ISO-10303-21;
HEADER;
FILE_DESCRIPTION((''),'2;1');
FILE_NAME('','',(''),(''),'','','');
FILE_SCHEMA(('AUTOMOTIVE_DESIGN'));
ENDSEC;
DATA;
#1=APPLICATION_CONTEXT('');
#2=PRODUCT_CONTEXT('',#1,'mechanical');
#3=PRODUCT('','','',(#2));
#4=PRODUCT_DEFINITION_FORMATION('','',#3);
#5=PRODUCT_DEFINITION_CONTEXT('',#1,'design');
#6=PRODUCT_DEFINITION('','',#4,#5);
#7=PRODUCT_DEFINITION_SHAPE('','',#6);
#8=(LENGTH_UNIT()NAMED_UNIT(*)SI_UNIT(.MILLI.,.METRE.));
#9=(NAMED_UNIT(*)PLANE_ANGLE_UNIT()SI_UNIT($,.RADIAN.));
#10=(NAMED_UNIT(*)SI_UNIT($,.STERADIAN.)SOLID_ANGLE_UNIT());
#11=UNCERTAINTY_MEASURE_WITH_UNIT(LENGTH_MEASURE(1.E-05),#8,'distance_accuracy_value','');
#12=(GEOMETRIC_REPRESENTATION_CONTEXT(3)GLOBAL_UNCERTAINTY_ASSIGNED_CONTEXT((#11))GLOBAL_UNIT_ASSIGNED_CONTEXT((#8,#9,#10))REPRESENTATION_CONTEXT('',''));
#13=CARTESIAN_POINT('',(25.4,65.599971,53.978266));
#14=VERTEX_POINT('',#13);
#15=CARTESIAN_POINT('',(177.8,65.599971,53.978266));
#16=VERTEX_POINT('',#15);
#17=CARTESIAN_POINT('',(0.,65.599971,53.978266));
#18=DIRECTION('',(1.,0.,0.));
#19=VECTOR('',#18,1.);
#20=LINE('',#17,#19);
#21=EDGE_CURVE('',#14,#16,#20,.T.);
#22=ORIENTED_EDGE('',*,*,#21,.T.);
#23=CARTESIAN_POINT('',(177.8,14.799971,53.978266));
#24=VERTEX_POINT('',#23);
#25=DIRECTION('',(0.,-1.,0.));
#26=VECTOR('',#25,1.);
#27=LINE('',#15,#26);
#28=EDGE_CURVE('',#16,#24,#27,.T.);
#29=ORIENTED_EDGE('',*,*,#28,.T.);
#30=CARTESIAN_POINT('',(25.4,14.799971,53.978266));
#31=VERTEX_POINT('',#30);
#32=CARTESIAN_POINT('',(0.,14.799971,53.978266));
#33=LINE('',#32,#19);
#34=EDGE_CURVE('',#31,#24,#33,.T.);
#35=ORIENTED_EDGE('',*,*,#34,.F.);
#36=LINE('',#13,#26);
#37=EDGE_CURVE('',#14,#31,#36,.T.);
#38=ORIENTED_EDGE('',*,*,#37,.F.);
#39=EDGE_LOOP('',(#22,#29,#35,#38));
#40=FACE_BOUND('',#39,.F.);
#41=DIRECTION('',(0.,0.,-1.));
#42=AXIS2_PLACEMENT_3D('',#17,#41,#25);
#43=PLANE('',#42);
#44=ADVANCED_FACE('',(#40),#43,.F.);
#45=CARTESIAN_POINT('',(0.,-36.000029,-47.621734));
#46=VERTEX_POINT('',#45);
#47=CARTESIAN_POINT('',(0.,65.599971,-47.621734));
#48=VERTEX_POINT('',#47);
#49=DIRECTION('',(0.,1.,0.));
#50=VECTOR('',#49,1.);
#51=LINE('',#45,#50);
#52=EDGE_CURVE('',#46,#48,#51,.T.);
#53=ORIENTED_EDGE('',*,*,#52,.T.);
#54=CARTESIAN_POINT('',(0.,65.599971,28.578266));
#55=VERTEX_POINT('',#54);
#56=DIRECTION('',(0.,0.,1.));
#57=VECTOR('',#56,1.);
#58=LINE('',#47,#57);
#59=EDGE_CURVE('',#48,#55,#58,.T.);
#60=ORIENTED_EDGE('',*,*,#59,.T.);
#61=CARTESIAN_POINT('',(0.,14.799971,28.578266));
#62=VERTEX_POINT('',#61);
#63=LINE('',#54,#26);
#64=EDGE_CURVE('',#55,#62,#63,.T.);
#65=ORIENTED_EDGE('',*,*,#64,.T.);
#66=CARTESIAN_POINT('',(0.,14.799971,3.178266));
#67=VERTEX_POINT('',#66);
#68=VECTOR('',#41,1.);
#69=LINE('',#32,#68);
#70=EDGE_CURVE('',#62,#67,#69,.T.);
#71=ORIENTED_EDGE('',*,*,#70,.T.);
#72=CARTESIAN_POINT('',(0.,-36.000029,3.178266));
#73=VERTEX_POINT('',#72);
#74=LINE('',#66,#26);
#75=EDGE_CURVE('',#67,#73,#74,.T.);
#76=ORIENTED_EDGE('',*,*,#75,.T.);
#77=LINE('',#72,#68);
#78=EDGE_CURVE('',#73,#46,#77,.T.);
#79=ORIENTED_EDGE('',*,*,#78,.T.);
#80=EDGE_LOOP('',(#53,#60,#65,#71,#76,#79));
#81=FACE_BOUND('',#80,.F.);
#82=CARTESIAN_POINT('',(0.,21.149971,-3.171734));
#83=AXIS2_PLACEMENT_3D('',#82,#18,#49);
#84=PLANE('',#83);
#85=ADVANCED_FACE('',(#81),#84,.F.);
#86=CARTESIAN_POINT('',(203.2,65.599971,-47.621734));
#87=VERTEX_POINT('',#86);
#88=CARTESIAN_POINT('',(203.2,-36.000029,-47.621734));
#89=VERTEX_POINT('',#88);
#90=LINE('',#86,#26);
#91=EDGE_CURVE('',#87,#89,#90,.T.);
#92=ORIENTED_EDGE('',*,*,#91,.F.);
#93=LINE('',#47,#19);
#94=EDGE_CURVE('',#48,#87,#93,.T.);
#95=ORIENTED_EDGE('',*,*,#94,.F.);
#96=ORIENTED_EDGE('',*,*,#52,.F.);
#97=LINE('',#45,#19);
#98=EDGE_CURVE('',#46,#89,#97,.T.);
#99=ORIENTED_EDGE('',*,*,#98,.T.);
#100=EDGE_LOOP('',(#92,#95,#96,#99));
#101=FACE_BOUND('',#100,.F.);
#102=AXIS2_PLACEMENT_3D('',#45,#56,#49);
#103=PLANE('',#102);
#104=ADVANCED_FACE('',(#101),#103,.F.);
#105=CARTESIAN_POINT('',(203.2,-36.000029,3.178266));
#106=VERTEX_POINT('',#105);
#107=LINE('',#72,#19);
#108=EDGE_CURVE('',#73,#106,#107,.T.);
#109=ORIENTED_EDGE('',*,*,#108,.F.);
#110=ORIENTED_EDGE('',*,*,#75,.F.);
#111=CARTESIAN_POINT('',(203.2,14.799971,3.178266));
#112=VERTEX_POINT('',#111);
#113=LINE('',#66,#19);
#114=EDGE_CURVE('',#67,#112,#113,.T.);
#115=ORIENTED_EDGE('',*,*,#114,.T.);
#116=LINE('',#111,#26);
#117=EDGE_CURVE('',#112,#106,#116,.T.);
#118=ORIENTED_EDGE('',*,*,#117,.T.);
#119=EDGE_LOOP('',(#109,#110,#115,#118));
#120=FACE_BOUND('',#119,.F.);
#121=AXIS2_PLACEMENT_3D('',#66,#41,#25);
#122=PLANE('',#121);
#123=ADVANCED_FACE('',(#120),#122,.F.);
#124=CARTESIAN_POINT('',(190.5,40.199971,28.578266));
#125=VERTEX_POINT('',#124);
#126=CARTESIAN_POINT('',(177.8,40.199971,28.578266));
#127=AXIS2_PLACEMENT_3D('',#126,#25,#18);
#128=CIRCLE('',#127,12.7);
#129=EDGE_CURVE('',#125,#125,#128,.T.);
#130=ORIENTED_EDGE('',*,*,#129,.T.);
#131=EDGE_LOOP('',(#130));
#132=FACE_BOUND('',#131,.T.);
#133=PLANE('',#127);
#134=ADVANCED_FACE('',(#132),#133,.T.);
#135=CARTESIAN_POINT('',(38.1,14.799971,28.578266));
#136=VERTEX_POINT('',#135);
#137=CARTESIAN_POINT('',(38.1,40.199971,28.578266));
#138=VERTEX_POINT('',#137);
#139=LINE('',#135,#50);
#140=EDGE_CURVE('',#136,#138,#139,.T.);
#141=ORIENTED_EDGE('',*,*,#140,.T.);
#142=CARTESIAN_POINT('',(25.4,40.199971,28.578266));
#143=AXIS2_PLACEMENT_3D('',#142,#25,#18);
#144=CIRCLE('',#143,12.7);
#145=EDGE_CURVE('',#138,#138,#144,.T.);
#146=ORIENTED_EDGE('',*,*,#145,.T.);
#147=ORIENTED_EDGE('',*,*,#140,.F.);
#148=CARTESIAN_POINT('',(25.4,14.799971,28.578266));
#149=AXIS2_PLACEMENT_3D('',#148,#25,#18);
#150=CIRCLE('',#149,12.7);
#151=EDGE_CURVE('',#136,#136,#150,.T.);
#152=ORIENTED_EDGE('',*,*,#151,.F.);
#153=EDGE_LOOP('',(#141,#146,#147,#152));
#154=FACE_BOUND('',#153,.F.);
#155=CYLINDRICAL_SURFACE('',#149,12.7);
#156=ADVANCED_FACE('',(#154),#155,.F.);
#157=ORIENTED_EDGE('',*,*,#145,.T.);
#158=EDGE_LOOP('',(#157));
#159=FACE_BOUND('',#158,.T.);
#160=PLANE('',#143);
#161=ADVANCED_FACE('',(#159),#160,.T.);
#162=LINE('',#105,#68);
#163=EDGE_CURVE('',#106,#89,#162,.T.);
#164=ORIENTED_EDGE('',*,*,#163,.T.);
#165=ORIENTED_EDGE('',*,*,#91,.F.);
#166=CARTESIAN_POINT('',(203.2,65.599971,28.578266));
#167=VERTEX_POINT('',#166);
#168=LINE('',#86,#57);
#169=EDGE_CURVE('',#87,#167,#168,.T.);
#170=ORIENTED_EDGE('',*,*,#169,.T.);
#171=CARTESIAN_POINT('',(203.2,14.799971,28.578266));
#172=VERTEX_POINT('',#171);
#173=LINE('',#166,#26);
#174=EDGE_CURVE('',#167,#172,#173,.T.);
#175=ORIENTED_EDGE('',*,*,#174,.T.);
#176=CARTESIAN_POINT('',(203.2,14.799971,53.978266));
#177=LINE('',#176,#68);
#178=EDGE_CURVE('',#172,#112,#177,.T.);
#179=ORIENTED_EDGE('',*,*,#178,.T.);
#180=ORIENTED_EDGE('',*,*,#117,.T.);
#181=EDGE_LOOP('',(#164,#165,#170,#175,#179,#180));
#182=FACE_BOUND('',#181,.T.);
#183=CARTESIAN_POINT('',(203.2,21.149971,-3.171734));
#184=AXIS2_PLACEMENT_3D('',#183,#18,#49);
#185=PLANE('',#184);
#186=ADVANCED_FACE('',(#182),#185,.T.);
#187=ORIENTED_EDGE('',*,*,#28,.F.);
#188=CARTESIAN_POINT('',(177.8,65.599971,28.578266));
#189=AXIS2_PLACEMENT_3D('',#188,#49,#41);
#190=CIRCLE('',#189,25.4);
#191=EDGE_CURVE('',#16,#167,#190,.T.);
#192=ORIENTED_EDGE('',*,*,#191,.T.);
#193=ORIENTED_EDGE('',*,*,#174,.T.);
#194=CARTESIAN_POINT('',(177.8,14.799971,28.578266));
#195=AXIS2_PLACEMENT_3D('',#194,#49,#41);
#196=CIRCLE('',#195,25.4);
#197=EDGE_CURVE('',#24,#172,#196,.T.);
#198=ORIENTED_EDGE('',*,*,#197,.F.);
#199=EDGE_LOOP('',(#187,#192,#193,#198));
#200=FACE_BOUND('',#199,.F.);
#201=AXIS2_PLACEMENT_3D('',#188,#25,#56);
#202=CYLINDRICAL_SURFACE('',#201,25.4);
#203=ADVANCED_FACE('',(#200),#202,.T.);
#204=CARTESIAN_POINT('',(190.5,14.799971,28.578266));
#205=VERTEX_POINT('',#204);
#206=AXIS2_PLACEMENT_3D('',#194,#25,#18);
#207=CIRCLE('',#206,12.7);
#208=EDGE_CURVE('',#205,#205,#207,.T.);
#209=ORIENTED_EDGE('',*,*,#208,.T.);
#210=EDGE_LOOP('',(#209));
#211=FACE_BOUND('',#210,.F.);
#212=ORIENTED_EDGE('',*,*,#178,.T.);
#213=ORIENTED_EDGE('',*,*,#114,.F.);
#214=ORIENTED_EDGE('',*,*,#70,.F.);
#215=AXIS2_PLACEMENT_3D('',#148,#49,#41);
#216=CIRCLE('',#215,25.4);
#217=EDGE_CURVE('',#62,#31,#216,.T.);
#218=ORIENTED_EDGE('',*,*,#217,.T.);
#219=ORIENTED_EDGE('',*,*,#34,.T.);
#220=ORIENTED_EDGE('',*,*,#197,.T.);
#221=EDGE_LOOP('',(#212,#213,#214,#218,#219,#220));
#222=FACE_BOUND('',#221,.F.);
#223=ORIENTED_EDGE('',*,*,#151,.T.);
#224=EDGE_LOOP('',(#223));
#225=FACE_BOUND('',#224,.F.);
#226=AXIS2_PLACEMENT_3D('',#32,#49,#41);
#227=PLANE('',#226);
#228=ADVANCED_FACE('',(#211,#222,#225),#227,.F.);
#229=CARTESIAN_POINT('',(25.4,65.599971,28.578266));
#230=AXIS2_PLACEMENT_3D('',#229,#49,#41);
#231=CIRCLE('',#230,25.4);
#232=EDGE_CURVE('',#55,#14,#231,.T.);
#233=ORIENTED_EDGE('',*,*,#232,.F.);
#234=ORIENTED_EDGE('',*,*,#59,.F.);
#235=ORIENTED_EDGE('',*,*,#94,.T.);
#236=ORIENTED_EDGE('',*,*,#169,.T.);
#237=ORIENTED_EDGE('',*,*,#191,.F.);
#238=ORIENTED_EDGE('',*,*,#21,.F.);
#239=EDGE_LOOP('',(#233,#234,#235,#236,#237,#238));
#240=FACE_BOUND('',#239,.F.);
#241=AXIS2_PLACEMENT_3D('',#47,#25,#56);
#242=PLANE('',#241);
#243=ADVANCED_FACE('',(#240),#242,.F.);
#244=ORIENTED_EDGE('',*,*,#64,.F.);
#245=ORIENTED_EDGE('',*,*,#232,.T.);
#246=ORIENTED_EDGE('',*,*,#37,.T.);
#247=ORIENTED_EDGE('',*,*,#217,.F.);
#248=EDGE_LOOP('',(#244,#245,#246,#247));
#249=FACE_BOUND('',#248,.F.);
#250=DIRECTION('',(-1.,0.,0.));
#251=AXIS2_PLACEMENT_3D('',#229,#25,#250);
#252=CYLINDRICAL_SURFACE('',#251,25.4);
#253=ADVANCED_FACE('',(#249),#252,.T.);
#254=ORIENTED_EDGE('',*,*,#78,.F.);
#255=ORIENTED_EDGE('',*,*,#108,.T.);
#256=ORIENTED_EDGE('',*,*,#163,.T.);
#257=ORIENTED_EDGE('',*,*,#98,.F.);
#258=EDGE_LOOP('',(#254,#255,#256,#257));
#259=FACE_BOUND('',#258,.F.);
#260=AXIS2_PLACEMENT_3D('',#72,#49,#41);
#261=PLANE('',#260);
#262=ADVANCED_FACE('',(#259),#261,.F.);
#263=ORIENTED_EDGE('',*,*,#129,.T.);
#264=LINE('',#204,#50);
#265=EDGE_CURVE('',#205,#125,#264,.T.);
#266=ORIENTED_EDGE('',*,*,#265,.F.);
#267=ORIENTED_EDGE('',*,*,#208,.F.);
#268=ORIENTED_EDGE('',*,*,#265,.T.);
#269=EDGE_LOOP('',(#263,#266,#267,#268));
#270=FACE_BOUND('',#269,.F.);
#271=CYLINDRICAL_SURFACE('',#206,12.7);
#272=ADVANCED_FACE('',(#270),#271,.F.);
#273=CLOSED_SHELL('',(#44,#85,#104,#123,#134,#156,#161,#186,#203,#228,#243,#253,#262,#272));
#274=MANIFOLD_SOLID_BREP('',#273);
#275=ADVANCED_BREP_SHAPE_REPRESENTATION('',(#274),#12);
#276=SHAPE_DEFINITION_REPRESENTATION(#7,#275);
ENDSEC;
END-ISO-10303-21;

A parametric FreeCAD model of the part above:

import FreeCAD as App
import Part
import Sketcher

V = App.Vector
Q = App.Units.Quantity


def edges_at(feature, points):
    """Names of the edges that pass closest to the given points."""
    edges = feature.Shape.Edges
    near = lambda p: min(range(len(edges)), key=lambda i: edges[i].distToShape(Part.Vertex(*p))[0])
    return sorted({f"Edge{near(p) + 1}" for p in points})

doc = App.newDocument("Part")
body = doc.addObject("PartDesign::Body", "Body")

sketch1 = body.newObject("Sketcher::SketchObject", "Sketch")
sketch1.AttachmentSupport = (doc.getObject("YZ_Plane"), [""])
sketch1.MapMode = "FlatFace"
sketch1.addGeometry(Part.LineSegment(V(15, 3, 0), V(-36, 3, 0)), False)
sketch1.addGeometry(Part.LineSegment(V(-36, 3, 0), V(-36, -48, 0)), False)
sketch1.addGeometry(Part.LineSegment(V(-36, -48, 0), V(66, -48, 0)), False)
sketch1.addGeometry(Part.LineSegment(V(66, -48, 0), V(66, 54, 0)), False)
sketch1.addGeometry(Part.LineSegment(V(66, 54, 0), V(15, 54, 0)), False)
sketch1.addGeometry(Part.LineSegment(V(15, 54, 0), V(15, 3, 0)), False)
sketch1.addConstraint(Sketcher.Constraint("Coincident", 0, 2, 1, 1))
sketch1.addConstraint(Sketcher.Constraint("Coincident", 1, 2, 2, 1))
sketch1.addConstraint(Sketcher.Constraint("Coincident", 2, 2, 3, 1))
sketch1.addConstraint(Sketcher.Constraint("Coincident", 3, 2, 4, 1))
sketch1.addConstraint(Sketcher.Constraint("Coincident", 4, 2, 5, 1))
sketch1.addConstraint(Sketcher.Constraint("Coincident", 5, 2, 0, 1))
sketch1.addConstraint(Sketcher.Constraint("Horizontal", 0))
sketch1.addConstraint(Sketcher.Constraint("Vertical", 1))
sketch1.addConstraint(Sketcher.Constraint("Horizontal", 2))
sketch1.addConstraint(Sketcher.Constraint("Vertical", 3))
sketch1.addConstraint(Sketcher.Constraint("Horizontal", 4))
sketch1.addConstraint(Sketcher.Constraint("Vertical", 5))
sketch1.addConstraint(Sketcher.Constraint("Equal", 0, 4))
sketch1.addConstraint(Sketcher.Constraint("Equal", 4, 1))
sketch1.addConstraint(Sketcher.Constraint("Equal", 2, 3))
sketch1.addConstraint(Sketcher.Constraint("DistanceX", 0, 2, 0, 1, Q("2 in")))
sketch1.addConstraint(Sketcher.Constraint("DistanceX", 0, 2, -1, 1, Q("36.000029 mm")))
sketch1.addConstraint(Sketcher.Constraint("DistanceY", -1, 1, 0, 2, Q("3.178266 mm")))
pad1 = body.newObject("PartDesign::Pad", "Pad")
pad1.Profile = sketch1
pad1.Length = Q("8 in")

sketch2 = body.newObject("Sketcher::SketchObject", "Sketch001")
sketch2.AttachmentSupport = (doc.getObject("XY_Plane"), [""])
sketch2.MapMode = "FlatFace"
sketch2.AttachmentOffset = App.Placement(V(0, 0, -47.621734), App.Rotation())
sketch2.addGeometry(Part.LineSegment(V(0, -87, 0), V(0, -36, 0)), False)
sketch2.addGeometry(Part.LineSegment(V(0, -36, 0), V(76, -36, 0)), False)
sketch2.addGeometry(Part.LineSegment(V(76, -36, 0), V(76, -87, 0)), False)
sketch2.addGeometry(Part.LineSegment(V(76, -87, 0), V(0, -87, 0)), False)
sketch2.addGeometry(Part.LineSegment(V(203, -36, 0), V(203, 15, 0)), False)
sketch2.addGeometry(Part.LineSegment(V(203, 15, 0), V(279, 15, 0)), False)
sketch2.addGeometry(Part.LineSegment(V(279, 15, 0), V(279, -36, 0)), False)
sketch2.addGeometry(Part.LineSegment(V(279, -36, 0), V(203, -36, 0)), False)
sketch2.addConstraint(Sketcher.Constraint("Coincident", 0, 2, 1, 1))
sketch2.addConstraint(Sketcher.Constraint("Coincident", 1, 2, 2, 1))
sketch2.addConstraint(Sketcher.Constraint("Coincident", 2, 2, 3, 1))
sketch2.addConstraint(Sketcher.Constraint("Coincident", 3, 2, 0, 1))
sketch2.addConstraint(Sketcher.Constraint("Coincident", 4, 2, 5, 1))
sketch2.addConstraint(Sketcher.Constraint("Coincident", 5, 2, 6, 1))
sketch2.addConstraint(Sketcher.Constraint("Coincident", 6, 2, 7, 1))
sketch2.addConstraint(Sketcher.Constraint("Coincident", 7, 2, 4, 1))
sketch2.addConstraint(Sketcher.Constraint("Vertical", 0))
sketch2.addConstraint(Sketcher.Constraint("Horizontal", 1))
sketch2.addConstraint(Sketcher.Constraint("Vertical", 2))
sketch2.addConstraint(Sketcher.Constraint("Horizontal", 3))
sketch2.addConstraint(Sketcher.Constraint("Vertical", 4))
sketch2.addConstraint(Sketcher.Constraint("Horizontal", 5))
sketch2.addConstraint(Sketcher.Constraint("Vertical", 6))
sketch2.addConstraint(Sketcher.Constraint("Horizontal", 7))
sketch2.addConstraint(Sketcher.Constraint("PointOnObject", 0, 2, -2))
sketch2.addConstraint(Sketcher.Constraint("Horizontal", 1, 2, 6, 2))
sketch2.addConstraint(Sketcher.Constraint("Equal", 3, 5))
sketch2.addConstraint(Sketcher.Constraint("Equal", 2, 4))
sketch2.addConstraint(Sketcher.Constraint("DistanceX", 1, 1, 1, 2, Q("3 in")))
sketch2.addConstraint(Sketcher.Constraint("DistanceY", 0, 1, 0, 2, Q("2 in")))
sketch2.addConstraint(Sketcher.Constraint("DistanceX", -1, 1, 4, 2, Q("8 in")))
sketch2.addConstraint(Sketcher.Constraint("DistanceY", 0, 2, -1, 1, Q("36.000029 mm")))
pocket1 = body.newObject("PartDesign::Pocket", "Pocket")
pocket1.Profile = sketch2
pocket1.Length = Q("2 in")
pocket1.Reversed = True
doc.recompute()

fillet = body.newObject("PartDesign::Fillet", "Fillet")
fillet.Base = (pocket1, edges_at(pocket1, [(0, 40.2, 53.978), (203.2, 40.2, 53.978)]))
fillet.Radius = Q("1 in")

sketch3 = body.newObject("Sketcher::SketchObject", "Sketch002")
sketch3.AttachmentSupport = (doc.getObject("XZ_Plane"), [""])
sketch3.MapMode = "FlatFace"
sketch3.AttachmentOffset = App.Placement(V(0, 0, -14.799971), App.Rotation())
sketch3.addGeometry(Part.Circle(V(25, 29, 0), V(0, 0, 1), 13), False)
sketch3.addGeometry(Part.Circle(V(178, 29, 0), V(0, 0, 1), 13), False)
sketch3.addConstraint(Sketcher.Constraint("Equal", 0, 1))
sketch3.addConstraint(Sketcher.Constraint("Horizontal", 0, 3, 1, 3))
sketch3.addConstraint(Sketcher.Constraint("Diameter", 0, Q("1 in")))
sketch3.addConstraint(Sketcher.Constraint("DistanceX", -1, 1, 0, 3, Q("1 in")))
sketch3.addConstraint(Sketcher.Constraint("DistanceX", -1, 1, 1, 3, Q("7 in")))
sketch3.addConstraint(Sketcher.Constraint("DistanceY", -1, 1, 0, 3, Q("28.578266 mm")))
pocket2 = body.newObject("PartDesign::Pocket", "Pocket001")
pocket2.Profile = sketch3
pocket2.Length = Q("1 in")

doc.recompute()
